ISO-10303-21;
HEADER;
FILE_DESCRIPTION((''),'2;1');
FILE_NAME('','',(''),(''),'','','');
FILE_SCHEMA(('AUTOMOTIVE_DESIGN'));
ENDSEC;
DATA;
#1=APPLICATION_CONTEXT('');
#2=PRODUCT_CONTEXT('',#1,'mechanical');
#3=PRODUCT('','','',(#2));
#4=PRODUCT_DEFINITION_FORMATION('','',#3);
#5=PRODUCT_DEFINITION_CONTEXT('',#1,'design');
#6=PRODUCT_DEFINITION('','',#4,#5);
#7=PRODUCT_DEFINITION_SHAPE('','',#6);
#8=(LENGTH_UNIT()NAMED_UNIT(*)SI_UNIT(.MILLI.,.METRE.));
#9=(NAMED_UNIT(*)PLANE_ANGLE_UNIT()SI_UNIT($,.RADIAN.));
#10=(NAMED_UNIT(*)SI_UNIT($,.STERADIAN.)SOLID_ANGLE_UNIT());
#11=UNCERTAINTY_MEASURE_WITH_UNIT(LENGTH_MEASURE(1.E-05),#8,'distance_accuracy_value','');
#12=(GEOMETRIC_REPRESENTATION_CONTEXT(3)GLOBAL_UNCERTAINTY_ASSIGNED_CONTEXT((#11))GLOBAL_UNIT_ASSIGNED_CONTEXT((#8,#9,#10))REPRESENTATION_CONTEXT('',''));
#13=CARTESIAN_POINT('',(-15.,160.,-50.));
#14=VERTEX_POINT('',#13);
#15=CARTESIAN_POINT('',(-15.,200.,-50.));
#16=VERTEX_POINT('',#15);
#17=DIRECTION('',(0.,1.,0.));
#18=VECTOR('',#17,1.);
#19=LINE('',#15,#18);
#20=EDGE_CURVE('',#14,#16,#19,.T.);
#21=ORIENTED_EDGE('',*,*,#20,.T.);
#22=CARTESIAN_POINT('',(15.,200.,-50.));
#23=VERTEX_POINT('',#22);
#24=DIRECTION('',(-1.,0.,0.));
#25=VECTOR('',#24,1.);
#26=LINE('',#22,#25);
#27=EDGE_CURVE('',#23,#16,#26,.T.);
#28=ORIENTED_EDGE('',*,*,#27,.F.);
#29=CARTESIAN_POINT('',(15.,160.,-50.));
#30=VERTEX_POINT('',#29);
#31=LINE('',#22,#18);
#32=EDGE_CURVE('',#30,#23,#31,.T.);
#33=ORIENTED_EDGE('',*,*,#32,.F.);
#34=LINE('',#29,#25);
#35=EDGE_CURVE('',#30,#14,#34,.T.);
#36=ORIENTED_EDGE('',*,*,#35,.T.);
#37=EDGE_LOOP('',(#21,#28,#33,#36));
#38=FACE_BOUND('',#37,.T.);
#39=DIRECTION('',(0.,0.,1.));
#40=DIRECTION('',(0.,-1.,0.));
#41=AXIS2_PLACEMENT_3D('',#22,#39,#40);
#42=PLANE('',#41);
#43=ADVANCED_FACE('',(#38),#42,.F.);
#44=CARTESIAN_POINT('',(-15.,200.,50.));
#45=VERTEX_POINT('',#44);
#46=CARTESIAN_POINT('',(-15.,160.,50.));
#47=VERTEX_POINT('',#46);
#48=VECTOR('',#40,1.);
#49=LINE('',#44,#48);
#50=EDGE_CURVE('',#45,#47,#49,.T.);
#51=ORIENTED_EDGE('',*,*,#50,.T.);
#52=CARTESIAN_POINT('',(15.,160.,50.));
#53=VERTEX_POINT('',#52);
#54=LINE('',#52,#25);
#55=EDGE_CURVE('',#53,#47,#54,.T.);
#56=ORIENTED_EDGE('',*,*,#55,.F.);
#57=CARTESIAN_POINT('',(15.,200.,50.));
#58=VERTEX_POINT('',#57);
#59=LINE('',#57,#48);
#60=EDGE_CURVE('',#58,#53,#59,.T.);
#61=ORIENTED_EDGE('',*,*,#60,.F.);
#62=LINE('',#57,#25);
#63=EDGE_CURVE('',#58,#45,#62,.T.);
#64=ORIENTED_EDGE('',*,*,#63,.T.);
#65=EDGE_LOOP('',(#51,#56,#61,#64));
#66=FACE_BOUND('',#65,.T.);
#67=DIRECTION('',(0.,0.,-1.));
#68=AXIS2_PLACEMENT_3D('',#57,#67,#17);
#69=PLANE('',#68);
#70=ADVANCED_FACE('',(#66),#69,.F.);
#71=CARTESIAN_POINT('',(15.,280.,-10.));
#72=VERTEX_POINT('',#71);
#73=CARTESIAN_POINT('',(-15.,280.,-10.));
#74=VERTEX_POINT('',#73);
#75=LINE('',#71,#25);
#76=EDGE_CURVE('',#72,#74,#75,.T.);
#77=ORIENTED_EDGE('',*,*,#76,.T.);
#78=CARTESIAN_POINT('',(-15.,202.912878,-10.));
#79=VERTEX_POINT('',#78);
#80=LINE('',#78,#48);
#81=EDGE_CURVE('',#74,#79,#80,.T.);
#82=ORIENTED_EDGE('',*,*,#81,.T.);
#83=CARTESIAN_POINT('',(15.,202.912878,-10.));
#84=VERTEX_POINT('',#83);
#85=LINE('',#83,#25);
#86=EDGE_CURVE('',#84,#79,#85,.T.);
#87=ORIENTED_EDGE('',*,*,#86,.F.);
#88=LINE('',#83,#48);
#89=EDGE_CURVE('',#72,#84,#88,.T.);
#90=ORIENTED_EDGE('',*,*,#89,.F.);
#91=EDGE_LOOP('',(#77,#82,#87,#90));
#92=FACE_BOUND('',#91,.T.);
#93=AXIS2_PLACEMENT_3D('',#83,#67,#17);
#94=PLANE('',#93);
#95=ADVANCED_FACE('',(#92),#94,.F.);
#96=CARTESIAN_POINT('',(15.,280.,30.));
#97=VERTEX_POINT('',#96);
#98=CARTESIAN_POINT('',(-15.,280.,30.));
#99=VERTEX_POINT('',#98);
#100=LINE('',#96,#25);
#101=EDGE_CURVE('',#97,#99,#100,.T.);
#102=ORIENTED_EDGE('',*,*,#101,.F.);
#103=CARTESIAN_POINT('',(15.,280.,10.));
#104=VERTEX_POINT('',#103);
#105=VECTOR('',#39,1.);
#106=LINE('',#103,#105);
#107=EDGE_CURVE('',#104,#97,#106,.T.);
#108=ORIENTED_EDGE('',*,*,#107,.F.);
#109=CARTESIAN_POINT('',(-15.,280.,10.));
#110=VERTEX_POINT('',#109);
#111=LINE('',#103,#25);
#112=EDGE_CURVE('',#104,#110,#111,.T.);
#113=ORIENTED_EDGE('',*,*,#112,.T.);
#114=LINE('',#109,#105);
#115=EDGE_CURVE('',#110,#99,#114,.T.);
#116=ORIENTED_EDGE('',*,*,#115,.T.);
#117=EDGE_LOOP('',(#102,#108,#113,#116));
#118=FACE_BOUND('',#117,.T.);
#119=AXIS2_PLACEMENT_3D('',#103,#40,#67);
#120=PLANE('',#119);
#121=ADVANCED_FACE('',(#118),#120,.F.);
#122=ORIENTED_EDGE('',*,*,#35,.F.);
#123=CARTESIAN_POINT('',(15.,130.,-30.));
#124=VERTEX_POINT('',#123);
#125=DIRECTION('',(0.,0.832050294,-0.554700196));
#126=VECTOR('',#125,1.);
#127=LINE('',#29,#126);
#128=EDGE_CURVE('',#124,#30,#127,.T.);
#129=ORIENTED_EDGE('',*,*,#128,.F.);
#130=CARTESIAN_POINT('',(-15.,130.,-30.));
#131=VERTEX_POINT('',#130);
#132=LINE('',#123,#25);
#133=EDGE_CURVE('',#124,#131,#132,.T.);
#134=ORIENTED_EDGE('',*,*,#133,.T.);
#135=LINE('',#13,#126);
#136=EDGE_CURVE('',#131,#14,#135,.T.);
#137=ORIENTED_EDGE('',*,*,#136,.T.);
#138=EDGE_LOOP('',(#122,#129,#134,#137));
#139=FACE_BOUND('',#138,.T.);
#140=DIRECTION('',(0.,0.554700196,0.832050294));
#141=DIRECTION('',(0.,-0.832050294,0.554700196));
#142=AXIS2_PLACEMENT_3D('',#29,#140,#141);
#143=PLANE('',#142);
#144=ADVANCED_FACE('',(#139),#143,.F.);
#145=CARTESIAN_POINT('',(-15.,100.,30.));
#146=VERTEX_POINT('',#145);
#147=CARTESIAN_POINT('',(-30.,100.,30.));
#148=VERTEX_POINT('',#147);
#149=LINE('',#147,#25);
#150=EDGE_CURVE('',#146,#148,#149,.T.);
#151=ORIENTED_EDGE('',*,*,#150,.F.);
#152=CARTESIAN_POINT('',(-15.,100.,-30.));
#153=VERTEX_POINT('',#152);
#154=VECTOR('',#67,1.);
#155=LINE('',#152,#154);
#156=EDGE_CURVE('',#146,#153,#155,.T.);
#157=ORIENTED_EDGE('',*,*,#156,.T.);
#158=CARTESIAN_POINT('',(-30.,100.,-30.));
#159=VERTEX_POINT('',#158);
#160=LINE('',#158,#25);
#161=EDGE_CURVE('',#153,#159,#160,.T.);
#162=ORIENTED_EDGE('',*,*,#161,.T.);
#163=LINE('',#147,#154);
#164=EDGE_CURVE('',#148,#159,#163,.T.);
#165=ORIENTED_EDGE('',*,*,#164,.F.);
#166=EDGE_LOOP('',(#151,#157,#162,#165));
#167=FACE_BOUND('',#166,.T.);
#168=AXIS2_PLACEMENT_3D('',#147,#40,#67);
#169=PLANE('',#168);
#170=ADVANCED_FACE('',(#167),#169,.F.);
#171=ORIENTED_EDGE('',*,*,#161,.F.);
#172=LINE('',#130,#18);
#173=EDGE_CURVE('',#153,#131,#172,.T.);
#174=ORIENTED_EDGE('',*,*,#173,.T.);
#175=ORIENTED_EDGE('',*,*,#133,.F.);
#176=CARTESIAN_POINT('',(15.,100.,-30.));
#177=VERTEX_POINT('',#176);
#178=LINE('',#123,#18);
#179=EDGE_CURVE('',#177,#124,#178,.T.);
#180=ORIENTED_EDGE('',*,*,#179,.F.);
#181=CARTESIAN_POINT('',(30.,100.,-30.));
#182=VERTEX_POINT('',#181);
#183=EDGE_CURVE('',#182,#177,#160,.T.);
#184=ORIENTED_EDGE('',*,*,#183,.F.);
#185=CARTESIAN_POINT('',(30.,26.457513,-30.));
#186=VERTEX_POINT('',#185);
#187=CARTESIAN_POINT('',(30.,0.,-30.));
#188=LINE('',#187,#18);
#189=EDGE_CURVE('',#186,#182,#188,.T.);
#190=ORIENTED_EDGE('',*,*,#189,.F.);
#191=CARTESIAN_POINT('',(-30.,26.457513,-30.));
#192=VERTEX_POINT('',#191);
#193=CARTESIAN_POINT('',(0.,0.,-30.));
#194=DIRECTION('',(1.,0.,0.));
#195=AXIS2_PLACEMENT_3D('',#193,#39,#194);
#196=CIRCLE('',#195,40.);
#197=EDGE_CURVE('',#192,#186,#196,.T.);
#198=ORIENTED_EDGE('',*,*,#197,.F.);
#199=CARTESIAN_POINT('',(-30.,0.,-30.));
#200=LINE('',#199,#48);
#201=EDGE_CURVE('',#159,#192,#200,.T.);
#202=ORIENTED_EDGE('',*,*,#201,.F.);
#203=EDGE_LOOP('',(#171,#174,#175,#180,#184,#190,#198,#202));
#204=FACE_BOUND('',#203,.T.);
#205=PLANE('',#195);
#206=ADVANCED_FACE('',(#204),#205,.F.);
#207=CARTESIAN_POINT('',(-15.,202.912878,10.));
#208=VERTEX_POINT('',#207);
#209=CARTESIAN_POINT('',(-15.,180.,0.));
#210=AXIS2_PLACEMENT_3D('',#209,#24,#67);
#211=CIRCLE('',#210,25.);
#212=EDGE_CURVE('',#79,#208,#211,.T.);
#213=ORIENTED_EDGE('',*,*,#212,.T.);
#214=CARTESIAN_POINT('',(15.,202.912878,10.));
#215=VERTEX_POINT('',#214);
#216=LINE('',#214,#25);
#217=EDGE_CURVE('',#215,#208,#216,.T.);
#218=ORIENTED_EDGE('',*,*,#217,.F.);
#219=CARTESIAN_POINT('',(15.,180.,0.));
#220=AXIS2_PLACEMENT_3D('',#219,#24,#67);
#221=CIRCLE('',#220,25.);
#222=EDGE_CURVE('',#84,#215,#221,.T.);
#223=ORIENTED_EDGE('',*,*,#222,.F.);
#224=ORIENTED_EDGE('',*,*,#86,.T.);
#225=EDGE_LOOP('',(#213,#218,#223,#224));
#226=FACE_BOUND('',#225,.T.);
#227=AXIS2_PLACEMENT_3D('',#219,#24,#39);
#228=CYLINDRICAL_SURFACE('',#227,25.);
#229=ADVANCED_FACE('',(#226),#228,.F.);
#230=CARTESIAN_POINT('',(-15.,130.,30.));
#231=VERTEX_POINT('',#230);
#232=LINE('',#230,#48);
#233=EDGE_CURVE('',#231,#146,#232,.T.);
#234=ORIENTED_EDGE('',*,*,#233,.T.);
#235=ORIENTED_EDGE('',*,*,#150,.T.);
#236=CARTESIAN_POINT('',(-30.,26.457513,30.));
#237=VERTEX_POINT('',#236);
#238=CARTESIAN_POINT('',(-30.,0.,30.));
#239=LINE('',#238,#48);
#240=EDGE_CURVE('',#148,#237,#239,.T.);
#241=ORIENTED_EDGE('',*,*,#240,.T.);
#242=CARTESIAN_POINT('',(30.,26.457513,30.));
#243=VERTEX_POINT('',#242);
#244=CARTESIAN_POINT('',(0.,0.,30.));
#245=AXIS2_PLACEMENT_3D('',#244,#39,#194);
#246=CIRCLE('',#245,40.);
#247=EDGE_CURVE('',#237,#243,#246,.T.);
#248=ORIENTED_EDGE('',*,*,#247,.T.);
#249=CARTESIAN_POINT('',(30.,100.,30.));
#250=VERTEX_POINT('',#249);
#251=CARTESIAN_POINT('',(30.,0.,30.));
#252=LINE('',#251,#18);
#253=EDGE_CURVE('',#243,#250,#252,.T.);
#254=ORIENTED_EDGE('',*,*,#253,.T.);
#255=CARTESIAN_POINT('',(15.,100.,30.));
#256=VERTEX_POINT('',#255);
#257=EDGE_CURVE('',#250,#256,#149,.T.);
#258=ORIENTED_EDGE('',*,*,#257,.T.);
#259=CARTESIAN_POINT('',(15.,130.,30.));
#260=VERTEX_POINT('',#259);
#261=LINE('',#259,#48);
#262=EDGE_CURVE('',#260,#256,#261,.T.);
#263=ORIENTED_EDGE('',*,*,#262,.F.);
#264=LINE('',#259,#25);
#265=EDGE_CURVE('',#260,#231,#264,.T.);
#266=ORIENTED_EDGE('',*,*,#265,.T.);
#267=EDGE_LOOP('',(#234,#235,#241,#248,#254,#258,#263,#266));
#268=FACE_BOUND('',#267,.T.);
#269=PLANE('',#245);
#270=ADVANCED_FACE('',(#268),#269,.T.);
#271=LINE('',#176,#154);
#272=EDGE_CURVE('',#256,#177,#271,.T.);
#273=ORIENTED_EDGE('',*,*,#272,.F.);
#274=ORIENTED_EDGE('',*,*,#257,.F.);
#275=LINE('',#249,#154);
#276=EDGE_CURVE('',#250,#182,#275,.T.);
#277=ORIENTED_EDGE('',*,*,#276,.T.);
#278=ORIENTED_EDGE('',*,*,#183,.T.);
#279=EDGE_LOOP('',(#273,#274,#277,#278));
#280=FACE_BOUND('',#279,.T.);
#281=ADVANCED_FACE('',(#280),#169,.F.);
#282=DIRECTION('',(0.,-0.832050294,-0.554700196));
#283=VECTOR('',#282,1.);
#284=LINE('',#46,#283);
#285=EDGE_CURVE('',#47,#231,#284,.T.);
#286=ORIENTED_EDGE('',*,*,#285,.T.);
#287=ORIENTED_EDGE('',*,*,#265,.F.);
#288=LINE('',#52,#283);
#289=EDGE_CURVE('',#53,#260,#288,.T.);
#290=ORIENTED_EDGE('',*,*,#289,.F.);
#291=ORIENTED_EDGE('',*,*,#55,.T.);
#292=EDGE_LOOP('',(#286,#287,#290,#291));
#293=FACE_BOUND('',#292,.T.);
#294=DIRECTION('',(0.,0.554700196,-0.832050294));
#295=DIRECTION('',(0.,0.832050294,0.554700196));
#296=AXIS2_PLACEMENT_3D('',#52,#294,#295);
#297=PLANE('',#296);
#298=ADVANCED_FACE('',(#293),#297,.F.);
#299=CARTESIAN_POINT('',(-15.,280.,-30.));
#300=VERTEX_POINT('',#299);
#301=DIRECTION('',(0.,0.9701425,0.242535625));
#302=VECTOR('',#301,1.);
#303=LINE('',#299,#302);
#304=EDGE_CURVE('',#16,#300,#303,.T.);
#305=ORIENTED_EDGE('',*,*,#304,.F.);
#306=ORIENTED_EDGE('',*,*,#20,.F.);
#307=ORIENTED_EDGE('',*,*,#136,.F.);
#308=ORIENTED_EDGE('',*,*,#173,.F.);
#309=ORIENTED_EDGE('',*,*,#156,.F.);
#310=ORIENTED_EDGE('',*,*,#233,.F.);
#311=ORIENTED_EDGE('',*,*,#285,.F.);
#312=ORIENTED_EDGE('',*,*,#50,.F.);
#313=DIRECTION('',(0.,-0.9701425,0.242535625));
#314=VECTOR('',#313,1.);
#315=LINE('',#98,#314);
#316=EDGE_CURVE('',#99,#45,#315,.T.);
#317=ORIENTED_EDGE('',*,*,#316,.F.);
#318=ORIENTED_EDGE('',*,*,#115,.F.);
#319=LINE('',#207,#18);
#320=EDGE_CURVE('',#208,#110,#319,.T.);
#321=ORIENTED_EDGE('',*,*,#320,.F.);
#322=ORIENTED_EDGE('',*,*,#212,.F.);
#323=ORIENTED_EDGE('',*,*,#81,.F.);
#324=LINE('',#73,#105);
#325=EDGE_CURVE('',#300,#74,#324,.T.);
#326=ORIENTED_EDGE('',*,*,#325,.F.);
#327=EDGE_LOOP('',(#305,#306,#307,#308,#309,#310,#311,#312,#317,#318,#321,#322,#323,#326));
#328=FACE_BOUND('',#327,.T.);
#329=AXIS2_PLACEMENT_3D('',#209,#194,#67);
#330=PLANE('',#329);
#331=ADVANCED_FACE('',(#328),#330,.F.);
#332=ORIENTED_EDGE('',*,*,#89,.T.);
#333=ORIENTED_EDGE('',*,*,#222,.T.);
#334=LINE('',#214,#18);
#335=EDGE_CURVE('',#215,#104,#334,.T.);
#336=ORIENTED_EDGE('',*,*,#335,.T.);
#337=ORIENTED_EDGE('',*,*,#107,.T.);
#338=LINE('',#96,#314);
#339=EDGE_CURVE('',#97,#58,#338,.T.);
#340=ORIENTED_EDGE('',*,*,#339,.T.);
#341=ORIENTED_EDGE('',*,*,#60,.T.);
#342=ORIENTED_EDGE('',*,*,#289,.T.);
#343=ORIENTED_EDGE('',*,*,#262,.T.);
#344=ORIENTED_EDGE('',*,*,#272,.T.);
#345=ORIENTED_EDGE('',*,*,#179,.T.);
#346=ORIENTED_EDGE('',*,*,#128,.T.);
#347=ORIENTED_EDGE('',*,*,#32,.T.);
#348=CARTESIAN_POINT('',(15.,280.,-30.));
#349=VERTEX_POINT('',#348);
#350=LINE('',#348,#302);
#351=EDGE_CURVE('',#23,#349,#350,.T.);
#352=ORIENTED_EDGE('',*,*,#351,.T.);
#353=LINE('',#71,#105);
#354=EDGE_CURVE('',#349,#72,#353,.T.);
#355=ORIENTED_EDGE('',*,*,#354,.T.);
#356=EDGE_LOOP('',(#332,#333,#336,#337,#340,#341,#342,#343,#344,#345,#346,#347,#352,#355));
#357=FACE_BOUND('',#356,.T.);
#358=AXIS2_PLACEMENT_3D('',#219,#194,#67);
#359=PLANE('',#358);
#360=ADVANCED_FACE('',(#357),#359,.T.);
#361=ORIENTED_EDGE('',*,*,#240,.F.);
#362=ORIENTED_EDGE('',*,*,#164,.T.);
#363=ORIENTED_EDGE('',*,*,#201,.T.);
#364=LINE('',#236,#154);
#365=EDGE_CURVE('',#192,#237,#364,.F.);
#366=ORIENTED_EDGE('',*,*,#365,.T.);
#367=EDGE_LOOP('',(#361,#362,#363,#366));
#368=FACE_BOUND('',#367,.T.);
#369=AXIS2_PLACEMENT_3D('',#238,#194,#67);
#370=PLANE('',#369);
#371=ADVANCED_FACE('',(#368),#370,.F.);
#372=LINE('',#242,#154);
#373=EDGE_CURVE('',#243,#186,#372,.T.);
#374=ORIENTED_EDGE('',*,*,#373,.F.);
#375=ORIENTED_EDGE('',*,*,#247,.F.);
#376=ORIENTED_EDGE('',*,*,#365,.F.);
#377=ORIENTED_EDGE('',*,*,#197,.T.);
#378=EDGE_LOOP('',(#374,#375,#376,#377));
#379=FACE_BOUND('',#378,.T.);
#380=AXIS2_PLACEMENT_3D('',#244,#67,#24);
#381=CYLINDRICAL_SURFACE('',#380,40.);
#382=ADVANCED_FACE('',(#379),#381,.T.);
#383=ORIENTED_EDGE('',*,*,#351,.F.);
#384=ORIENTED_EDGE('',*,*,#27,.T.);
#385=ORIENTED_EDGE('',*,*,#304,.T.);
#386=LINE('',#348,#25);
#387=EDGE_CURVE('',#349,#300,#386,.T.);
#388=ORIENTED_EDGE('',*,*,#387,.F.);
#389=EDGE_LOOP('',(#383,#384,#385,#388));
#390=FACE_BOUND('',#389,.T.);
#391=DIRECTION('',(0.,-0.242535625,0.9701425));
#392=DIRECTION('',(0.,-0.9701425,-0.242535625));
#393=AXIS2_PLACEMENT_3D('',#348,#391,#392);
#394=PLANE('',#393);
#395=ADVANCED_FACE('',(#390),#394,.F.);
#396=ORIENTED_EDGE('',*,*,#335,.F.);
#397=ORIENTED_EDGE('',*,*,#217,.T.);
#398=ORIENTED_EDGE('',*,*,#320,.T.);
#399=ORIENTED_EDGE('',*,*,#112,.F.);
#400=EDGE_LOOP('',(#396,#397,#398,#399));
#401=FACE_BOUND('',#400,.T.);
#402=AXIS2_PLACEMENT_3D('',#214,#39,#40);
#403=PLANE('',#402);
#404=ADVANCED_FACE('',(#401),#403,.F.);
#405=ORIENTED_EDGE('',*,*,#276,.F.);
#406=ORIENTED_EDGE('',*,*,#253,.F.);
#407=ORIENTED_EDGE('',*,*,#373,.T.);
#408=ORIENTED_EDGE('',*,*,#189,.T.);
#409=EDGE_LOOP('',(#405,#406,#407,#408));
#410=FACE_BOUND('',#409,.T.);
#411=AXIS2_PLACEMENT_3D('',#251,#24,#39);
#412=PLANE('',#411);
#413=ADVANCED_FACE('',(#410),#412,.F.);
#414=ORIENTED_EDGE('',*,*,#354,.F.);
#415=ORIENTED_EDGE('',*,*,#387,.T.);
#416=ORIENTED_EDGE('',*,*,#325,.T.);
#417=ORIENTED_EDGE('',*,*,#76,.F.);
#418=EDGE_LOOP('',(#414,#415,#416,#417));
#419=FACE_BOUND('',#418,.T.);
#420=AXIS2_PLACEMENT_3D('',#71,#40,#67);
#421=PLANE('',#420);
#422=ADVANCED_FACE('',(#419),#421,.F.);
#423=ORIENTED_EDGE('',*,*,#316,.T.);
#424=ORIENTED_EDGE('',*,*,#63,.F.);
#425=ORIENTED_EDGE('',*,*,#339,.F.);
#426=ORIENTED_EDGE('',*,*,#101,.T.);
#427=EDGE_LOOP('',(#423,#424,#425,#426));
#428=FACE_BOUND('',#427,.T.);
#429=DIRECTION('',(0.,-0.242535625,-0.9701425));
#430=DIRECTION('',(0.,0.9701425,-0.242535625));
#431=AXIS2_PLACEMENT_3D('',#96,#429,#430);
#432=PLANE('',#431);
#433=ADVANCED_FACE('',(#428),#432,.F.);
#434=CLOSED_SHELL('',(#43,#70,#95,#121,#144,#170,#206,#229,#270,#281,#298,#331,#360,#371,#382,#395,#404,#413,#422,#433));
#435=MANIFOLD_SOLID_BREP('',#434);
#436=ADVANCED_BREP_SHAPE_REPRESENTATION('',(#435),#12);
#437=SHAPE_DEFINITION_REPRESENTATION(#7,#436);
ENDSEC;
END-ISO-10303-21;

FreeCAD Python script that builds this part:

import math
import FreeCAD as App
import Part
import Sketcher
from FreeCAD import Vector
Q = App.Units.Quantity


def add_polygon(sketch, points):
    """Adds a closed chain of lines whose ends are joined by coincident constraints."""
    first, n = sketch.GeometryCount, len(points)
    for a, b in zip(points, points[1:] + points[:1]):
        sketch.addGeometry(Part.LineSegment(App.Vector(*a, 0), App.Vector(*b, 0)), False)
    for i in range(n):
        sketch.addConstraint(Sketcher.Constraint("Coincident", first + i, 2, first + (i + 1) % n, 1))

doc = App.newDocument("Part")
body = doc.addObject("PartDesign::Body", "Body")

sketch1 = body.newObject("Sketcher::SketchObject", "Sketch")
sketch1.AttachmentSupport = (doc.getObject("XY_Plane"), [""])
sketch1.MapMode = "FlatFace"
sketch1.addGeometry(Part.Circle(Vector(0, 0, 0), Vector(0, 0, 1), 40), False)
sketch1.addConstraint([
    Sketcher.Constraint("Coincident", 0, 3, -1, 1),
    Sketcher.Constraint("Diameter", 0, Q("80 mm")),
])
pad1 = body.newObject("PartDesign::Pad", "Pad")
pad1.Profile = sketch1
pad1.Length = 60
pad1.Midplane = True

sketch2 = body.newObject("Sketcher::SketchObject", "Sketch001")
sketch2.AttachmentSupport = (doc.getObject("XY_Plane"), [""])
sketch2.MapMode = "FlatFace"
add_polygon(sketch2, [(-30, 100), (-30, 0), (30, 0), (30, 100)])
sketch2.addConstraint([
    Sketcher.Constraint("Vertical", 0),
    Sketcher.Constraint("Horizontal", 1),
    Sketcher.Constraint("Vertical", 2),
    Sketcher.Constraint("Horizontal", 3),
    Sketcher.Constraint("Symmetric", 0, 2, 1, 2, -1, 1),
    Sketcher.Constraint("DistanceX", 1, 1, 1, 2, Q("60 mm")),
    Sketcher.Constraint("DistanceY", 0, 2, 0, 1, Q("100 mm")),
])
pad2 = body.newObject("PartDesign::Pad", "Pad001")
pad2.Profile = sketch2
pad2.Length = 60
pad2.Midplane = True

sketch3 = body.newObject("Sketcher::SketchObject", "Sketch002")
sketch3.AttachmentSupport = (doc.getObject("YZ_Plane"), [""])
sketch3.MapMode = "FlatFace"
sketch3.addGeometry([
    Part.LineSegment(Vector(130, 30, 0), Vector(100, 30, 0)),
    Part.LineSegment(Vector(100, 30, 0), Vector(100, -30, 0)),
    Part.LineSegment(Vector(100, -30, 0), Vector(130, -30, 0)),
    Part.LineSegment(Vector(130, -30, 0), Vector(160, -50, 0)),
    Part.LineSegment(Vector(160, -50, 0), Vector(200, -50, 0)),
    Part.LineSegment(Vector(200, -50, 0), Vector(280, -30, 0)),
    Part.LineSegment(Vector(280, -30, 0), Vector(280, -10, 0)),
    Part.LineSegment(Vector(280, -10, 0), Vector(203, -10, 0)),
    Part.ArcOfCircle(Part.Circle(Vector(180, 0, 0), Vector(0, 0, 1), 25), math.radians(24), math.radians(336)),
    Part.LineSegment(Vector(203, 10, 0), Vector(280, 10, 0)),
    Part.LineSegment(Vector(280, 10, 0), Vector(280, 30, 0)),
    Part.LineSegment(Vector(280, 30, 0), Vector(200, 50, 0)),
    Part.LineSegment(Vector(200, 50, 0), Vector(160, 50, 0)),
    Part.LineSegment(Vector(160, 50, 0), Vector(130, 30, 0)),
], False)
sketch3.addConstraint([
    Sketcher.Constraint("Coincident", 0, 2, 1, 1),
    Sketcher.Constraint("Coincident", 1, 2, 2, 1),
    Sketcher.Constraint("Coincident", 2, 2, 3, 1),
    Sketcher.Constraint("Coincident", 3, 2, 4, 1),
    Sketcher.Constraint("Coincident", 4, 2, 5, 1),
    Sketcher.Constraint("Coincident", 5, 2, 6, 1),
    Sketcher.Constraint("Coincident", 6, 2, 7, 1),
    Sketcher.Constraint("Coincident", 7, 2, 8, 2),
    Sketcher.Constraint("Coincident", 8, 1, 9, 1),
    Sketcher.Constraint("Coincident", 9, 2, 10, 1),
    Sketcher.Constraint("Coincident", 10, 2, 11, 1),
    Sketcher.Constraint("Coincident", 11, 2, 12, 1),
    Sketcher.Constraint("Coincident", 12, 2, 13, 1),
    Sketcher.Constraint("Coincident", 13, 2, 0, 1),
    Sketcher.Constraint("Horizontal", 0),
    Sketcher.Constraint("Vertical", 1),
    Sketcher.Constraint("Horizontal", 2),
    Sketcher.Constraint("Horizontal", 4),
    Sketcher.Constraint("Vertical", 6),
    Sketcher.Constraint("Horizontal", 7),
    Sketcher.Constraint("Horizontal", 9),
    Sketcher.Constraint("Vertical", 10),
    Sketcher.Constraint("Horizontal", 12),
    Sketcher.Constraint("Symmetric", 7, 2, 8, 1, -1),
    Sketcher.Constraint("Symmetric", 5, 2, 10, 2, -1),
    Sketcher.Constraint("Symmetric", 4, 2, 11, 2, -1),
    Sketcher.Constraint("Symmetric", 2, 2, 13, 2, -1),
    Sketcher.Constraint("Horizontal", 2, 2, 5, 2),
    Sketcher.Constraint("Vertical", 3, 2, 12, 2),
    Sketcher.Constraint("Radius", 8, Q("25 mm")),
    Sketcher.Constraint("DistanceX", 0, 2, 0, 1, Q("30 mm")),
    Sketcher.Constraint("DistanceX", 4, 1, 4, 2, Q("40 mm")),
    Sketcher.Constraint("DistanceY", 1, 2, 1, 1, Q("60 mm")),
    Sketcher.Constraint("DistanceY", 6, 1, 6, 2, Q("20 mm")),
    Sketcher.Constraint("DistanceX", -1, 1, 8, 3, Q("180 mm")),
    Sketcher.Constraint("DistanceX", -1, 1, 0, 2, Q("100 mm")),
    Sketcher.Constraint("DistanceX", -1, 1, 3, 2, Q("160 mm")),
    Sketcher.Constraint("DistanceY", 3, 2, -1, 1, Q("50 mm")),
    Sketcher.Constraint("DistanceX", -1, 1, 5, 2, Q("280 mm")),
])
pad3 = body.newObject("PartDesign::Pad", "Pad002")
pad3.Profile = sketch3
pad3.Length = 30
pad3.Midplane = True

doc.recompute()
